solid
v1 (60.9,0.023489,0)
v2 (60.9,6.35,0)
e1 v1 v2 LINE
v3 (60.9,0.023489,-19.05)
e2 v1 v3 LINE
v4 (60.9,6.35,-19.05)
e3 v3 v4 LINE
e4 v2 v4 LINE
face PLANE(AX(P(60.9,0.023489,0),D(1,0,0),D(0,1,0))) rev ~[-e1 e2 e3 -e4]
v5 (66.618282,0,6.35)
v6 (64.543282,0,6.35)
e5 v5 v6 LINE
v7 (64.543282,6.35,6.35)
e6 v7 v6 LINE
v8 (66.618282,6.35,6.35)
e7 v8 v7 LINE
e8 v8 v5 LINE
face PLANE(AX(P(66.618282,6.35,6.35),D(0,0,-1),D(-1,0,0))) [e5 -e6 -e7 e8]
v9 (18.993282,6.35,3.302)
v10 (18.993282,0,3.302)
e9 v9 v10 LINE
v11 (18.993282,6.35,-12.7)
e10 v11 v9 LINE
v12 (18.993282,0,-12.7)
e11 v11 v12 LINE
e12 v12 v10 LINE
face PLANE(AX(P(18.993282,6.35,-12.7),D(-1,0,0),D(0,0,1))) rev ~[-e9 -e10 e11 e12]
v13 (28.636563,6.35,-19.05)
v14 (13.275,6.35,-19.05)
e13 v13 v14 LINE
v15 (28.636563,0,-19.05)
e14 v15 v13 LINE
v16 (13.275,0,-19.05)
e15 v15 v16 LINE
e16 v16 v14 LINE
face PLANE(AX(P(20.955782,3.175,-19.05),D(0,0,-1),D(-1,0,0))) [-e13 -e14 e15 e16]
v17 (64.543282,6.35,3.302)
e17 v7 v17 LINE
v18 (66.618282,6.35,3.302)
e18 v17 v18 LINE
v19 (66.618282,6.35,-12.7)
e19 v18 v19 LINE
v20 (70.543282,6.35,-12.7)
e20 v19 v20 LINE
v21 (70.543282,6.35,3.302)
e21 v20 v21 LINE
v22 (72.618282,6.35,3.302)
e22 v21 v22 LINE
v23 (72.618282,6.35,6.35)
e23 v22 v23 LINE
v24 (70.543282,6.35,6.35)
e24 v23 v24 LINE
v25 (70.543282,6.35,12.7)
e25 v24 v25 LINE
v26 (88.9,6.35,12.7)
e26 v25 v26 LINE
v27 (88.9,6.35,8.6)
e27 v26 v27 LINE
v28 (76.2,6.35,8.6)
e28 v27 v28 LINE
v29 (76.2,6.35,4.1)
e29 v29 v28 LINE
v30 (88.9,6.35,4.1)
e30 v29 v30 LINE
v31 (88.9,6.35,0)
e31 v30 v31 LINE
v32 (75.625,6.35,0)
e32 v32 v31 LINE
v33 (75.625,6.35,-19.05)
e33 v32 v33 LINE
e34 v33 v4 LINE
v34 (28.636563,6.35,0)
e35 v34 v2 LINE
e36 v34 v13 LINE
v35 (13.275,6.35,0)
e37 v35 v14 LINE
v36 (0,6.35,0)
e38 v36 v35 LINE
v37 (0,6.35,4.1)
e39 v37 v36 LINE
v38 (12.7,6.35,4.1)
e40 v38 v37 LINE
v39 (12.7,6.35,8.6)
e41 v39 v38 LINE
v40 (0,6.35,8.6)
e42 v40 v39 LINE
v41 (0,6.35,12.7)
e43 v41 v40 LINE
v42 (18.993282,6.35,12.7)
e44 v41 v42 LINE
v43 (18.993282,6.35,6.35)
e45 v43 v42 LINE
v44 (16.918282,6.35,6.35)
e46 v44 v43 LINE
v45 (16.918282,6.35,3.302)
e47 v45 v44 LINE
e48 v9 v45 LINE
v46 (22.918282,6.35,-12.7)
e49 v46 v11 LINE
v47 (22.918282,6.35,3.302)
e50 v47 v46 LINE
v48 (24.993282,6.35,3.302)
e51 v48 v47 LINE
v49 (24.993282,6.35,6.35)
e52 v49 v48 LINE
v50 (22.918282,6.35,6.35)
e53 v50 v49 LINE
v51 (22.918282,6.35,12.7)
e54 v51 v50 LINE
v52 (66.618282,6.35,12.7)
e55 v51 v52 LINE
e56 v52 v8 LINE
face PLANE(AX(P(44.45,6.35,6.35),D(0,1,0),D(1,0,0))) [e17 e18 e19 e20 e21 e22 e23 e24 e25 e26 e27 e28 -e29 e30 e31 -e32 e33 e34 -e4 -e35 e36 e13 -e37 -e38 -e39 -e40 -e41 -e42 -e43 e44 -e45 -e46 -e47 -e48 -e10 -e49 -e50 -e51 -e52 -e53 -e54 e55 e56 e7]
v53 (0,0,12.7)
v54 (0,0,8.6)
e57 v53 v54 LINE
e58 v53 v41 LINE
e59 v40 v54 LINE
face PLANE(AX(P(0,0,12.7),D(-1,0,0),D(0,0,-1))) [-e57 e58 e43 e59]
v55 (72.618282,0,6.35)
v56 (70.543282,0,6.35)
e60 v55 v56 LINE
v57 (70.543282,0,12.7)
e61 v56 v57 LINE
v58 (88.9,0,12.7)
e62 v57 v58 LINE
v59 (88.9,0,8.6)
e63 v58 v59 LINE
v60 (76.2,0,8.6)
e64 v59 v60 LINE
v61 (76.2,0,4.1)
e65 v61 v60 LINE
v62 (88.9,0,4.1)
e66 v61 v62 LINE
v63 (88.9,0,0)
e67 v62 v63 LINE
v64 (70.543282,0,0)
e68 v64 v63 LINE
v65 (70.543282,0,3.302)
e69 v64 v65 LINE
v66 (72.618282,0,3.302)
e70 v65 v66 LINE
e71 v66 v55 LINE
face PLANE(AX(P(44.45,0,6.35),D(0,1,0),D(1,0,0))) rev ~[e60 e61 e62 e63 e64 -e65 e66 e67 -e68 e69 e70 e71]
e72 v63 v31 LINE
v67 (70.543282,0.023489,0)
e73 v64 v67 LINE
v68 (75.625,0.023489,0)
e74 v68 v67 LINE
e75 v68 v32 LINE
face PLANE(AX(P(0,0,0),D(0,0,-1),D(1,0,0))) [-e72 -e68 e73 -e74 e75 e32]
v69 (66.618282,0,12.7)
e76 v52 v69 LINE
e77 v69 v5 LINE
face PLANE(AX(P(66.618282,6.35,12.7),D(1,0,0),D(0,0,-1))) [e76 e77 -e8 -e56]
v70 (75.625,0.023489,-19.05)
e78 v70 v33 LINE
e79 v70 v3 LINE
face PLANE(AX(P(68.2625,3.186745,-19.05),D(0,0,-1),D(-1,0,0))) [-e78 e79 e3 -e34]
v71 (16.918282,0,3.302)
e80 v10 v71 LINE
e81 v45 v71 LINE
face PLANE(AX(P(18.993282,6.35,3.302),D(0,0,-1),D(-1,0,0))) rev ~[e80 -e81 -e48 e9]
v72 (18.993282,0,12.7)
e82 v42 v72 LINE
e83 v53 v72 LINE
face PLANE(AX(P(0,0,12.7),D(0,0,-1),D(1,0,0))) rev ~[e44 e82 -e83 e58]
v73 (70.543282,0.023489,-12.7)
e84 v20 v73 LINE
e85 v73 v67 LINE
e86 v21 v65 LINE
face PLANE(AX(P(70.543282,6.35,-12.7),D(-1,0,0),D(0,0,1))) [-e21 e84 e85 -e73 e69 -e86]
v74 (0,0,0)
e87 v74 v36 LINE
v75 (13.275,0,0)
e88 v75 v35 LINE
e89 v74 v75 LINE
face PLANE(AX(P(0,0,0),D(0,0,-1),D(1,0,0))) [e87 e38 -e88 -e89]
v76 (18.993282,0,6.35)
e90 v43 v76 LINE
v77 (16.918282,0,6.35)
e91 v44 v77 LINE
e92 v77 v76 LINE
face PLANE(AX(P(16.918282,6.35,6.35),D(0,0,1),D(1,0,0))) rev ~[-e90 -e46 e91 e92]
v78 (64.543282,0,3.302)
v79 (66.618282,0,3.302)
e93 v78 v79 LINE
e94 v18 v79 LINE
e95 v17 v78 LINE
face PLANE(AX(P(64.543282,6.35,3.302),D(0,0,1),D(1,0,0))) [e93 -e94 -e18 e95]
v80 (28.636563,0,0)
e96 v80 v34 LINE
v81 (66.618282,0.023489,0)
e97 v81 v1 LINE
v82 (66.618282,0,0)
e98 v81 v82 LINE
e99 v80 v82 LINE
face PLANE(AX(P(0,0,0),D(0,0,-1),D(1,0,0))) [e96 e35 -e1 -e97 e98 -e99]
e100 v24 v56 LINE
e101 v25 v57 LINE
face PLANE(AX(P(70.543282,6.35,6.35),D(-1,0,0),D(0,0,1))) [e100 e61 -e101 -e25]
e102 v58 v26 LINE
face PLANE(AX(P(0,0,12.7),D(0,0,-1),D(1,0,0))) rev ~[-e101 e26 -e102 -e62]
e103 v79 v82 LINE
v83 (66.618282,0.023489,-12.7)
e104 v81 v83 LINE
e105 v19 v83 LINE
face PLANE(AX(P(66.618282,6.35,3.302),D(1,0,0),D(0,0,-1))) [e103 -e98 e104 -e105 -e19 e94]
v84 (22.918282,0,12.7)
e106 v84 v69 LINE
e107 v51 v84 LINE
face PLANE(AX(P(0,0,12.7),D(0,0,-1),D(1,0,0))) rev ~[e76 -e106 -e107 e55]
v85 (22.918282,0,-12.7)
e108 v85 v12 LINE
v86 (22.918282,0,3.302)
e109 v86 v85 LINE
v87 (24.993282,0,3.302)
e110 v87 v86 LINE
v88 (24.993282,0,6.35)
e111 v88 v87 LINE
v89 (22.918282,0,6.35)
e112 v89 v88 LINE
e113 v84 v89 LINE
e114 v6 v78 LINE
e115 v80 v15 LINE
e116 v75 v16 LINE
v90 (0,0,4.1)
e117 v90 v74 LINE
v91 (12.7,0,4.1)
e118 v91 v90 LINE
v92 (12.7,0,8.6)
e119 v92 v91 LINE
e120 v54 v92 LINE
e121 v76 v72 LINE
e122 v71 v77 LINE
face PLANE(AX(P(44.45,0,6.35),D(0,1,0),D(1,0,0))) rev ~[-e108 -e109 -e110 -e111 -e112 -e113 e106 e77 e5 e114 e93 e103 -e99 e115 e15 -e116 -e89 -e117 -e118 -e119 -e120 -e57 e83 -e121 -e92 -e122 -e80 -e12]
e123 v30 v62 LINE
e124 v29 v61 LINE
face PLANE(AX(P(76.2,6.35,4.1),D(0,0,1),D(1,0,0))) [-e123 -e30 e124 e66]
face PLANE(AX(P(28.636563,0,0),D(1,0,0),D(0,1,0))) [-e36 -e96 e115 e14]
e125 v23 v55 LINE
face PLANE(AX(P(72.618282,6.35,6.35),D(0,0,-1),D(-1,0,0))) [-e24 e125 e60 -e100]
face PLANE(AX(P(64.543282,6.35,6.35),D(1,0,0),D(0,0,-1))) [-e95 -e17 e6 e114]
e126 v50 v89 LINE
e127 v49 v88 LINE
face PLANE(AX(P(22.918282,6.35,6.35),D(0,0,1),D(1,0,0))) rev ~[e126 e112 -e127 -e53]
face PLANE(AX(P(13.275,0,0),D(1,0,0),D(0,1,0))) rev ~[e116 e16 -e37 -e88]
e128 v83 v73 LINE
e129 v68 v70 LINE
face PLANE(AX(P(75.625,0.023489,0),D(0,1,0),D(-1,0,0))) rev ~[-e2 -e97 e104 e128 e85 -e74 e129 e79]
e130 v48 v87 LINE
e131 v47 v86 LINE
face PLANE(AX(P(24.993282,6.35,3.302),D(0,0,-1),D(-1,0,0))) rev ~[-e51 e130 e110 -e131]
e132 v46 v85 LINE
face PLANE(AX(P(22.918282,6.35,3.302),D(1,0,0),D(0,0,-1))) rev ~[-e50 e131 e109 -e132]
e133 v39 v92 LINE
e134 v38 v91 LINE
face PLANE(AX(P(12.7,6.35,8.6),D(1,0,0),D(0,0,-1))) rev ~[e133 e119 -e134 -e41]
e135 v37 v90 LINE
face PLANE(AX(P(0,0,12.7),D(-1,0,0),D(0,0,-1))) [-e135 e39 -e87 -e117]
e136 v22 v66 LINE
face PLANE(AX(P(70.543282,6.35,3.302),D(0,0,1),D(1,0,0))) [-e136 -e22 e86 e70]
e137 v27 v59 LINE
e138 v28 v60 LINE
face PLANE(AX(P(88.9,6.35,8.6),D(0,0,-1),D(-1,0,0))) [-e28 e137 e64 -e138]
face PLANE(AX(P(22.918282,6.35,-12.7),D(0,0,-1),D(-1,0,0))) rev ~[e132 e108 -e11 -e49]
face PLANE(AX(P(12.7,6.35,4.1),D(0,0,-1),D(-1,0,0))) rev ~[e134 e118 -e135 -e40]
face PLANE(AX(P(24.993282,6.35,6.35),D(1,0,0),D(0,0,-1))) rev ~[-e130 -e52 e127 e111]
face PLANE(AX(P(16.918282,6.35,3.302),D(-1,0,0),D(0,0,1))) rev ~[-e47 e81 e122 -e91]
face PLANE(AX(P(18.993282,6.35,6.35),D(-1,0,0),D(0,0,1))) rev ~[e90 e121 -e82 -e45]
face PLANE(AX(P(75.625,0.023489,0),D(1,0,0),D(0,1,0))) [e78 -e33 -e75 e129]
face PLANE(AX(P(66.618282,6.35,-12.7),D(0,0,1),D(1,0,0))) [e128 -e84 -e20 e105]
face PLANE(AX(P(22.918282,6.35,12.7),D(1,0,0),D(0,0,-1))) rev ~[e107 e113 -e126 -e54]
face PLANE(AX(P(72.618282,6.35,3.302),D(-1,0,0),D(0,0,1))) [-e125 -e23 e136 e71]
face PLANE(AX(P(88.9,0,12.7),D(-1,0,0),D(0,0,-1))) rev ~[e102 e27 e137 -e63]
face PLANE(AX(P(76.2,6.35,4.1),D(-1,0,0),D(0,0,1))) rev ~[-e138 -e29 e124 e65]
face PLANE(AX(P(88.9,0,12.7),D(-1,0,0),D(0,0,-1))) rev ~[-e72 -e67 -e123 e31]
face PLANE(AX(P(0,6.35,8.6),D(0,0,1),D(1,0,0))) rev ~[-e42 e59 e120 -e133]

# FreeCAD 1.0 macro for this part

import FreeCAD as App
import Part
import Sketcher
from FreeCAD import Vector
Q = App.Units.Quantity

doc = App.newDocument("Part")
body = doc.addObject("PartDesign::Body", "Body")

sketch1 = body.newObject("Sketcher::SketchObject", "Sketch")
sketch1.AttachmentSupport = (doc.getObject("XZ_Plane"), [""])
sketch1.MapMode = "FlatFace"
sketch1.addGeometry([
    Part.LineSegment(Vector(0, 0, 0), Vector(0, 13, 0)),
    Part.LineSegment(Vector(0, 13, 0), Vector(89, 13, 0)),
    Part.LineSegment(Vector(89, 13, 0), Vector(89, 0, 0)),
    Part.LineSegment(Vector(89, 0, 0), Vector(0, 0, 0)),
], False)
sketch1.addConstraint([
    Sketcher.Constraint("Coincident", 0, 2, 1, 1),
    Sketcher.Constraint("Coincident", 1, 2, 2, 1),
    Sketcher.Constraint("Coincident", 2, 2, 3, 1),
    Sketcher.Constraint("Coincident", 3, 2, 0, 1),
    Sketcher.Constraint("Vertical", 0),
    Sketcher.Constraint("Horizontal", 1),
    Sketcher.Constraint("Vertical", 2),
    Sketcher.Constraint("Horizontal", 3),
    Sketcher.Constraint("Coincident", 3, 2, -1, 1),
    Sketcher.Constraint("DistanceX", 1, 1, 1, 2, Q("3.5 in")),
    Sketcher.Constraint("DistanceY", 0, 1, 0, 2, Q("0.5 in")),
])
pad1 = body.newObject("PartDesign::Pad", "Pad")
pad1.Profile = sketch1
pad1.Length = Q("0.25 in")
pad1.Reversed = True

sketch2 = body.newObject("Sketcher::SketchObject", "Sketch001")
sketch2.AttachmentSupport = (doc.getObject("XY_Plane"), [""])
sketch2.MapMode = "FlatFace"
sketch2.addGeometry([
    Part.LineSegment(Vector(76, 6, 0), Vector(76, 0, 0)),
    Part.LineSegment(Vector(76, 0, 0), Vector(61, 0, 0)),
    Part.LineSegment(Vector(61, 0, 0), Vector(61, 6, 0)),
    Part.LineSegment(Vector(61, 6, 0), Vector(76, 6, 0)),
    Part.LineSegment(Vector(29, 6, 0), Vector(29, 0, 0)),
    Part.LineSegment(Vector(29, 0, 0), Vector(13, 0, 0)),
    Part.LineSegment(Vector(13, 0, 0), Vector(13, 6, 0)),
    Part.LineSegment(Vector(13, 6, 0), Vector(29, 6, 0)),
], False)
sketch2.addConstraint([
    Sketcher.Constraint("Coincident", 0, 2, 1, 1),
    Sketcher.Constraint("Coincident", 1, 2, 2, 1),
    Sketcher.Constraint("Coincident", 2, 2, 3, 1),
    Sketcher.Constraint("Coincident", 3, 2, 0, 1),
    Sketcher.Constraint("Coincident", 4, 2, 5, 1),
    Sketcher.Constraint("Coincident", 5, 2, 6, 1),
    Sketcher.Constraint("Coincident", 6, 2, 7, 1),
    Sketcher.Constraint("Coincident", 7, 2, 4, 1),
    Sketcher.Constraint("Vertical", 0),
    Sketcher.Constraint("Horizontal", 1),
    Sketcher.Constraint("Vertical", 2),
    Sketcher.Constraint("Horizontal", 3),
    Sketcher.Constraint("Vertical", 4),
    Sketcher.Constraint("Horizontal", 5),
    Sketcher.Constraint("Vertical", 6),
    Sketcher.Constraint("Horizontal", 7),
    Sketcher.Constraint("PointOnObject", 4, 2, -1),
    Sketcher.Constraint("Horizontal", 3, 2, 6, 2),
    Sketcher.Constraint("DistanceY", 4, 2, 4, 1, Q("0.25 in")),
    Sketcher.Constraint("DistanceX", 5, 2, 1, 2, Q("1.875 in")),
    Sketcher.Constraint("DistanceX", 1, 2, 1, 1, Q("14.725 mm")),
    Sketcher.Constraint("DistanceY", 0, 2, 0, 1, Q("6.326511 mm")),
    Sketcher.Constraint("DistanceX", -1, 1, 0, 2, Q("75.625 mm")),
    Sketcher.Constraint("DistanceX", 5, 2, 5, 1, Q("15.361563 mm")),
])
pad2 = body.newObject("PartDesign::Pad", "Pad001")
pad2.Profile = sketch2
pad2.Length = Q("0.75 in")
pad2.Reversed = True

sketch3 = body.newObject("Sketcher::SketchObject", "Sketch002")
sketch3.AttachmentSupport = (doc.getObject("XZ_Plane"), [""])
sketch3.MapMode = "FlatFace"
sketch3.AttachmentOffset = App.Placement(Vector(0, 0, -0.25 * 25.4), App.Rotation())
sketch3.addGeometry([
    Part.LineSegment(Vector(12.7, 4.1, 0), Vector(0, 4.1, 0)),
    Part.LineSegment(Vector(0, 4.1, 0), Vector(0, 8.6, 0)),
    Part.LineSegment(Vector(0, 8.6, 0), Vector(12.7, 8.6, 0)),
    Part.LineSegment(Vector(12.7, 8.6, 0), Vector(12.7, 4.1, 0)),
    Part.LineSegment(Vector(76.2, 4.1, 0), Vector(76.2, 8.6, 0)),
    Part.LineSegment(Vector(76.2, 8.6, 0), Vector(88.9, 8.6, 0)),
    Part.LineSegment(Vector(88.9, 8.6, 0), Vector(88.9, 4.1, 0)),
    Part.LineSegment(Vector(88.9, 4.1, 0), Vector(76.2, 4.1, 0)),
], False)
sketch3.addConstraint([
    Sketcher.Constraint("Coincident", 0, 2, 1, 1),
    Sketcher.Constraint("Coincident", 1, 2, 2, 1),
    Sketcher.Constraint("Coincident", 2, 2, 3, 1),
    Sketcher.Constraint("Coincident", 3, 2, 0, 1),
    Sketcher.Constraint("Coincident", 4, 2, 5, 1),
    Sketcher.Constraint("Coincident", 5, 2, 6, 1),
    Sketcher.Constraint("Coincident", 6, 2, 7, 1),
    Sketcher.Constraint("Coincident", 7, 2, 4, 1),
    Sketcher.Constraint("Horizontal", 0),
    Sketcher.Constraint("Vertical", 1),
    Sketcher.Constraint("Horizontal", 2),
    Sketcher.Constraint("Vertical", 3),
    Sketcher.Constraint("Vertical", 4),
    Sketcher.Constraint("Horizontal", 5),
    Sketcher.Constraint("Vertical", 6),
    Sketcher.Constraint("Horizontal", 7),
    Sketcher.Constraint("PointOnObject", 0, 2, -2),
    Sketcher.Constraint("Horizontal", 2, 2, 4, 2),
    Sketcher.Constraint("Horizontal", 3, 2, 6, 2),
    Sketcher.Constraint("Equal", 2, 5),
    Sketcher.Constraint("DistanceX", 0, 2, 0, 1, Q("0.5 in")),
    Sketcher.Constraint("DistanceX", -1, 1, 4, 2, Q("3 in")),
    Sketcher.Constraint("DistanceY", 1, 1, 1, 2, Q("4.5 mm")),
    Sketcher.Constraint("DistanceY", -1, 1, 0, 2, Q("4.1 mm")),
])
pocket1 = body.newObject("PartDesign::Pocket", "Pocket")
pocket1.Profile = sketch3
pocket1.Type = "ThroughAll"
pocket1.Reversed = True

sketch4 = body.newObject("Sketcher::SketchObject", "Sketch003")
sketch4.AttachmentSupport = (doc.getObject("XZ_Plane"), [""])
sketch4.MapMode = "FlatFace"
sketch4.AttachmentOffset = App.Placement(Vector(0, 0, -0.25 * 25.4), App.Rotation())
sketch4.addGeometry([
    Part.LineSegment(Vector(22.9, 12.7, 0), Vector(22.9, 6.3, 0)),
    Part.LineSegment(Vector(22.9, 6.3, 0), Vector(25, 6.3, 0)),
    Part.LineSegment(Vector(25, 6.3, 0), Vector(25, 3.3, 0)),
    Part.LineSegment(Vector(25, 3.3, 0), Vector(22.9, 3.3, 0)),
    Part.LineSegment(Vector(22.9, 3.3, 0), Vector(22.9, -12.7, 0)),
    Part.LineSegment(Vector(22.9, -12.7, 0), Vector(19, -12.7, 0)),
    Part.LineSegment(Vector(19, -12.7, 0), Vector(19, 3.3, 0)),
    Part.LineSegment(Vector(19, 3.3, 0), Vector(16.9, 3.3, 0)),
    Part.LineSegment(Vector(16.9, 3.3, 0), Vector(16.9, 6.3, 0)),
    Part.LineSegment(Vector(16.9, 6.3, 0), Vector(19, 6.3, 0)),
    Part.LineSegment(Vector(19, 6.3, 0), Vector(19, 12.7, 0)),
    Part.LineSegment(Vector(19, 12.7, 0), Vector(22.9, 12.7, 0)),
    Part.LineSegment(Vector(70.5, 3.3, 0), Vector(70.5, -12.7, 0)),
    Part.LineSegment(Vector(70.5, -12.7, 0), Vector(66.6, -12.7, 0)),
    Part.LineSegment(Vector(66.6, -12.7, 0), Vector(66.6, 3.3, 0)),
    Part.LineSegment(Vector(66.6, 3.3, 0), Vector(64.5, 3.3, 0)),
    Part.LineSegment(Vector(64.5, 3.3, 0), Vector(64.5, 6.3, 0)),
    Part.LineSegment(Vector(64.5, 6.3, 0), Vector(66.6, 6.3, 0)),
    Part.LineSegment(Vector(66.6, 6.3, 0), Vector(66.6, 12.7, 0)),
    Part.LineSegment(Vector(66.6, 12.7, 0), Vector(70.5, 12.7, 0)),
    Part.LineSegment(Vector(70.5, 12.7, 0), Vector(70.5, 6.3, 0)),
    Part.LineSegment(Vector(70.5, 6.3, 0), Vector(72.6, 6.3, 0)),
    Part.LineSegment(Vector(72.6, 6.3, 0), Vector(72.6, 3.3, 0)),
    Part.LineSegment(Vector(72.6, 3.3, 0), Vector(70.5, 3.3, 0)),
], False)
sketch4.addConstraint([
    Sketcher.Constraint("Coincident", 0, 2, 1, 1),
    Sketcher.Constraint("Coincident", 1, 2, 2, 1),
    Sketcher.Constraint("Coincident", 2, 2, 3, 1),
    Sketcher.Constraint("Coincident", 3, 2, 4, 1),
    Sketcher.Constraint("Coincident", 4, 2, 5, 1),
    Sketcher.Constraint("Coincident", 5, 2, 6, 1),
    Sketcher.Constraint("Coincident", 6, 2, 7, 1),
    Sketcher.Constraint("Coincident", 7, 2, 8, 1),
    Sketcher.Constraint("Coincident", 8, 2, 9, 1),
    Sketcher.Constraint("Coincident", 9, 2, 10, 1),
    Sketcher.Constraint("Coincident", 10, 2, 11, 1),
    Sketcher.Constraint("Coincident", 11, 2, 0, 1),
    Sketcher.Constraint("Coincident", 12, 2, 13, 1),
    Sketcher.Constraint("Coincident", 13, 2, 14, 1),
    Sketcher.Constraint("Coincident", 14, 2, 15, 1),
    Sketcher.Constraint("Coincident", 15, 2, 16, 1),
    Sketcher.Constraint("Coincident", 16, 2, 17, 1),
    Sketcher.Constraint("Coincident", 17, 2, 18, 1),
    Sketcher.Constraint("Coincident", 18, 2, 19, 1),
    Sketcher.Constraint("Coincident", 19, 2, 20, 1),
    Sketcher.Constraint("Coincident", 20, 2, 21, 1),
    Sketcher.Constraint("Coincident", 21, 2, 22, 1),
    Sketcher.Constraint("Coincident", 22, 2, 23, 1),
    Sketcher.Constraint("Coincident", 23, 2, 12, 1),
    Sketcher.Constraint("Vertical", 0),
    Sketcher.Constraint("Horizontal", 1),
    Sketcher.Constraint("Vertical", 2),
    Sketcher.Constraint("Horizontal", 3),
    Sketcher.Constraint("Vertical", 4),
    Sketcher.Constraint("Horizontal", 5),
    Sketcher.Constraint("Vertical", 6),
    Sketcher.Constraint("Horizontal", 7),
    Sketcher.Constraint("Vertical", 8),
    Sketcher.Constraint("Horizontal", 9),
    Sketcher.Constraint("Vertical", 10),
    Sketcher.Constraint("Horizontal", 11),
    Sketcher.Constraint("Vertical", 12),
    Sketcher.Constraint("Horizontal", 13),
    Sketcher.Constraint("Vertical", 14),
    Sketcher.Constraint("Horizontal", 15),
    Sketcher.Constraint("Vertical", 16),
    Sketcher.Constraint("Horizontal", 17),
    Sketcher.Constraint("Vertical", 18),
    Sketcher.Constraint("Horizontal", 19),
    Sketcher.Constraint("Vertical", 20),
    Sketcher.Constraint("Horizontal", 21),
    Sketcher.Constraint("Vertical", 22),
    Sketcher.Constraint("Horizontal", 23),
    Sketcher.Constraint("Symmetric", 5, 2, 10, 2, -1),
    Sketcher.Constraint("Symmetric", 13, 2, 18, 2, -1),
    Sketcher.Constraint("Horizontal", 3, 2, 6, 2),
    Sketcher.Constraint("Horizontal", 1, 2, 8, 2),
    Sketcher.Constraint("Horizontal", 5, 2, 12, 2),
    Sketcher.Constraint("Horizontal", 7, 2, 14, 2),
    Sketcher.Constraint("Horizontal", 9, 2, 16, 2),
    Sketcher.Constraint("Horizontal", 17, 2, 20, 2),
    Sketcher.Constraint("Horizontal", 15, 2, 22, 2),
    Sketcher.Constraint("Vertical", 0, 2, 3, 2),
    Sketcher.Constraint("Vertical", 12, 2, 19, 2),
    Sketcher.Constraint("Equal", 3, 7),
    Sketcher.Constraint("Equal", 11, 13),
    Sketcher.Constraint("Equal", 9, 15),
    Sketcher.Constraint("Equal", 17, 21),
    Sketcher.Constraint("DistanceY", 13, 2, 18, 2, Q("1 in")),
    Sketcher.Constraint("DistanceY", 0, 2, 0, 1, Q("0.25 in")),
    Sketcher.Constraint("DistanceY", 2, 2, 2, 1, Q("0.12 in")),
    Sketcher.Constraint("DistanceX", 4, 2, 12, 2, Q("1.875 in")),
    Sketcher.Constraint("DistanceX", 1, 1, 1, 2, Q("2.075 mm")),
    Sketcher.Constraint("DistanceX", 5, 2, 5, 1, Q("3.925 mm")),
    Sketcher.Constraint("DistanceX", -1, 1, 0, 2, Q("22.918282 mm")),
])
pocket2 = body.newObject("PartDesign::Pocket", "Pocket001")
pocket2.Profile = sketch4
pocket2.Type = "ThroughAll"
pocket2.Reversed = True

doc.recompute()
